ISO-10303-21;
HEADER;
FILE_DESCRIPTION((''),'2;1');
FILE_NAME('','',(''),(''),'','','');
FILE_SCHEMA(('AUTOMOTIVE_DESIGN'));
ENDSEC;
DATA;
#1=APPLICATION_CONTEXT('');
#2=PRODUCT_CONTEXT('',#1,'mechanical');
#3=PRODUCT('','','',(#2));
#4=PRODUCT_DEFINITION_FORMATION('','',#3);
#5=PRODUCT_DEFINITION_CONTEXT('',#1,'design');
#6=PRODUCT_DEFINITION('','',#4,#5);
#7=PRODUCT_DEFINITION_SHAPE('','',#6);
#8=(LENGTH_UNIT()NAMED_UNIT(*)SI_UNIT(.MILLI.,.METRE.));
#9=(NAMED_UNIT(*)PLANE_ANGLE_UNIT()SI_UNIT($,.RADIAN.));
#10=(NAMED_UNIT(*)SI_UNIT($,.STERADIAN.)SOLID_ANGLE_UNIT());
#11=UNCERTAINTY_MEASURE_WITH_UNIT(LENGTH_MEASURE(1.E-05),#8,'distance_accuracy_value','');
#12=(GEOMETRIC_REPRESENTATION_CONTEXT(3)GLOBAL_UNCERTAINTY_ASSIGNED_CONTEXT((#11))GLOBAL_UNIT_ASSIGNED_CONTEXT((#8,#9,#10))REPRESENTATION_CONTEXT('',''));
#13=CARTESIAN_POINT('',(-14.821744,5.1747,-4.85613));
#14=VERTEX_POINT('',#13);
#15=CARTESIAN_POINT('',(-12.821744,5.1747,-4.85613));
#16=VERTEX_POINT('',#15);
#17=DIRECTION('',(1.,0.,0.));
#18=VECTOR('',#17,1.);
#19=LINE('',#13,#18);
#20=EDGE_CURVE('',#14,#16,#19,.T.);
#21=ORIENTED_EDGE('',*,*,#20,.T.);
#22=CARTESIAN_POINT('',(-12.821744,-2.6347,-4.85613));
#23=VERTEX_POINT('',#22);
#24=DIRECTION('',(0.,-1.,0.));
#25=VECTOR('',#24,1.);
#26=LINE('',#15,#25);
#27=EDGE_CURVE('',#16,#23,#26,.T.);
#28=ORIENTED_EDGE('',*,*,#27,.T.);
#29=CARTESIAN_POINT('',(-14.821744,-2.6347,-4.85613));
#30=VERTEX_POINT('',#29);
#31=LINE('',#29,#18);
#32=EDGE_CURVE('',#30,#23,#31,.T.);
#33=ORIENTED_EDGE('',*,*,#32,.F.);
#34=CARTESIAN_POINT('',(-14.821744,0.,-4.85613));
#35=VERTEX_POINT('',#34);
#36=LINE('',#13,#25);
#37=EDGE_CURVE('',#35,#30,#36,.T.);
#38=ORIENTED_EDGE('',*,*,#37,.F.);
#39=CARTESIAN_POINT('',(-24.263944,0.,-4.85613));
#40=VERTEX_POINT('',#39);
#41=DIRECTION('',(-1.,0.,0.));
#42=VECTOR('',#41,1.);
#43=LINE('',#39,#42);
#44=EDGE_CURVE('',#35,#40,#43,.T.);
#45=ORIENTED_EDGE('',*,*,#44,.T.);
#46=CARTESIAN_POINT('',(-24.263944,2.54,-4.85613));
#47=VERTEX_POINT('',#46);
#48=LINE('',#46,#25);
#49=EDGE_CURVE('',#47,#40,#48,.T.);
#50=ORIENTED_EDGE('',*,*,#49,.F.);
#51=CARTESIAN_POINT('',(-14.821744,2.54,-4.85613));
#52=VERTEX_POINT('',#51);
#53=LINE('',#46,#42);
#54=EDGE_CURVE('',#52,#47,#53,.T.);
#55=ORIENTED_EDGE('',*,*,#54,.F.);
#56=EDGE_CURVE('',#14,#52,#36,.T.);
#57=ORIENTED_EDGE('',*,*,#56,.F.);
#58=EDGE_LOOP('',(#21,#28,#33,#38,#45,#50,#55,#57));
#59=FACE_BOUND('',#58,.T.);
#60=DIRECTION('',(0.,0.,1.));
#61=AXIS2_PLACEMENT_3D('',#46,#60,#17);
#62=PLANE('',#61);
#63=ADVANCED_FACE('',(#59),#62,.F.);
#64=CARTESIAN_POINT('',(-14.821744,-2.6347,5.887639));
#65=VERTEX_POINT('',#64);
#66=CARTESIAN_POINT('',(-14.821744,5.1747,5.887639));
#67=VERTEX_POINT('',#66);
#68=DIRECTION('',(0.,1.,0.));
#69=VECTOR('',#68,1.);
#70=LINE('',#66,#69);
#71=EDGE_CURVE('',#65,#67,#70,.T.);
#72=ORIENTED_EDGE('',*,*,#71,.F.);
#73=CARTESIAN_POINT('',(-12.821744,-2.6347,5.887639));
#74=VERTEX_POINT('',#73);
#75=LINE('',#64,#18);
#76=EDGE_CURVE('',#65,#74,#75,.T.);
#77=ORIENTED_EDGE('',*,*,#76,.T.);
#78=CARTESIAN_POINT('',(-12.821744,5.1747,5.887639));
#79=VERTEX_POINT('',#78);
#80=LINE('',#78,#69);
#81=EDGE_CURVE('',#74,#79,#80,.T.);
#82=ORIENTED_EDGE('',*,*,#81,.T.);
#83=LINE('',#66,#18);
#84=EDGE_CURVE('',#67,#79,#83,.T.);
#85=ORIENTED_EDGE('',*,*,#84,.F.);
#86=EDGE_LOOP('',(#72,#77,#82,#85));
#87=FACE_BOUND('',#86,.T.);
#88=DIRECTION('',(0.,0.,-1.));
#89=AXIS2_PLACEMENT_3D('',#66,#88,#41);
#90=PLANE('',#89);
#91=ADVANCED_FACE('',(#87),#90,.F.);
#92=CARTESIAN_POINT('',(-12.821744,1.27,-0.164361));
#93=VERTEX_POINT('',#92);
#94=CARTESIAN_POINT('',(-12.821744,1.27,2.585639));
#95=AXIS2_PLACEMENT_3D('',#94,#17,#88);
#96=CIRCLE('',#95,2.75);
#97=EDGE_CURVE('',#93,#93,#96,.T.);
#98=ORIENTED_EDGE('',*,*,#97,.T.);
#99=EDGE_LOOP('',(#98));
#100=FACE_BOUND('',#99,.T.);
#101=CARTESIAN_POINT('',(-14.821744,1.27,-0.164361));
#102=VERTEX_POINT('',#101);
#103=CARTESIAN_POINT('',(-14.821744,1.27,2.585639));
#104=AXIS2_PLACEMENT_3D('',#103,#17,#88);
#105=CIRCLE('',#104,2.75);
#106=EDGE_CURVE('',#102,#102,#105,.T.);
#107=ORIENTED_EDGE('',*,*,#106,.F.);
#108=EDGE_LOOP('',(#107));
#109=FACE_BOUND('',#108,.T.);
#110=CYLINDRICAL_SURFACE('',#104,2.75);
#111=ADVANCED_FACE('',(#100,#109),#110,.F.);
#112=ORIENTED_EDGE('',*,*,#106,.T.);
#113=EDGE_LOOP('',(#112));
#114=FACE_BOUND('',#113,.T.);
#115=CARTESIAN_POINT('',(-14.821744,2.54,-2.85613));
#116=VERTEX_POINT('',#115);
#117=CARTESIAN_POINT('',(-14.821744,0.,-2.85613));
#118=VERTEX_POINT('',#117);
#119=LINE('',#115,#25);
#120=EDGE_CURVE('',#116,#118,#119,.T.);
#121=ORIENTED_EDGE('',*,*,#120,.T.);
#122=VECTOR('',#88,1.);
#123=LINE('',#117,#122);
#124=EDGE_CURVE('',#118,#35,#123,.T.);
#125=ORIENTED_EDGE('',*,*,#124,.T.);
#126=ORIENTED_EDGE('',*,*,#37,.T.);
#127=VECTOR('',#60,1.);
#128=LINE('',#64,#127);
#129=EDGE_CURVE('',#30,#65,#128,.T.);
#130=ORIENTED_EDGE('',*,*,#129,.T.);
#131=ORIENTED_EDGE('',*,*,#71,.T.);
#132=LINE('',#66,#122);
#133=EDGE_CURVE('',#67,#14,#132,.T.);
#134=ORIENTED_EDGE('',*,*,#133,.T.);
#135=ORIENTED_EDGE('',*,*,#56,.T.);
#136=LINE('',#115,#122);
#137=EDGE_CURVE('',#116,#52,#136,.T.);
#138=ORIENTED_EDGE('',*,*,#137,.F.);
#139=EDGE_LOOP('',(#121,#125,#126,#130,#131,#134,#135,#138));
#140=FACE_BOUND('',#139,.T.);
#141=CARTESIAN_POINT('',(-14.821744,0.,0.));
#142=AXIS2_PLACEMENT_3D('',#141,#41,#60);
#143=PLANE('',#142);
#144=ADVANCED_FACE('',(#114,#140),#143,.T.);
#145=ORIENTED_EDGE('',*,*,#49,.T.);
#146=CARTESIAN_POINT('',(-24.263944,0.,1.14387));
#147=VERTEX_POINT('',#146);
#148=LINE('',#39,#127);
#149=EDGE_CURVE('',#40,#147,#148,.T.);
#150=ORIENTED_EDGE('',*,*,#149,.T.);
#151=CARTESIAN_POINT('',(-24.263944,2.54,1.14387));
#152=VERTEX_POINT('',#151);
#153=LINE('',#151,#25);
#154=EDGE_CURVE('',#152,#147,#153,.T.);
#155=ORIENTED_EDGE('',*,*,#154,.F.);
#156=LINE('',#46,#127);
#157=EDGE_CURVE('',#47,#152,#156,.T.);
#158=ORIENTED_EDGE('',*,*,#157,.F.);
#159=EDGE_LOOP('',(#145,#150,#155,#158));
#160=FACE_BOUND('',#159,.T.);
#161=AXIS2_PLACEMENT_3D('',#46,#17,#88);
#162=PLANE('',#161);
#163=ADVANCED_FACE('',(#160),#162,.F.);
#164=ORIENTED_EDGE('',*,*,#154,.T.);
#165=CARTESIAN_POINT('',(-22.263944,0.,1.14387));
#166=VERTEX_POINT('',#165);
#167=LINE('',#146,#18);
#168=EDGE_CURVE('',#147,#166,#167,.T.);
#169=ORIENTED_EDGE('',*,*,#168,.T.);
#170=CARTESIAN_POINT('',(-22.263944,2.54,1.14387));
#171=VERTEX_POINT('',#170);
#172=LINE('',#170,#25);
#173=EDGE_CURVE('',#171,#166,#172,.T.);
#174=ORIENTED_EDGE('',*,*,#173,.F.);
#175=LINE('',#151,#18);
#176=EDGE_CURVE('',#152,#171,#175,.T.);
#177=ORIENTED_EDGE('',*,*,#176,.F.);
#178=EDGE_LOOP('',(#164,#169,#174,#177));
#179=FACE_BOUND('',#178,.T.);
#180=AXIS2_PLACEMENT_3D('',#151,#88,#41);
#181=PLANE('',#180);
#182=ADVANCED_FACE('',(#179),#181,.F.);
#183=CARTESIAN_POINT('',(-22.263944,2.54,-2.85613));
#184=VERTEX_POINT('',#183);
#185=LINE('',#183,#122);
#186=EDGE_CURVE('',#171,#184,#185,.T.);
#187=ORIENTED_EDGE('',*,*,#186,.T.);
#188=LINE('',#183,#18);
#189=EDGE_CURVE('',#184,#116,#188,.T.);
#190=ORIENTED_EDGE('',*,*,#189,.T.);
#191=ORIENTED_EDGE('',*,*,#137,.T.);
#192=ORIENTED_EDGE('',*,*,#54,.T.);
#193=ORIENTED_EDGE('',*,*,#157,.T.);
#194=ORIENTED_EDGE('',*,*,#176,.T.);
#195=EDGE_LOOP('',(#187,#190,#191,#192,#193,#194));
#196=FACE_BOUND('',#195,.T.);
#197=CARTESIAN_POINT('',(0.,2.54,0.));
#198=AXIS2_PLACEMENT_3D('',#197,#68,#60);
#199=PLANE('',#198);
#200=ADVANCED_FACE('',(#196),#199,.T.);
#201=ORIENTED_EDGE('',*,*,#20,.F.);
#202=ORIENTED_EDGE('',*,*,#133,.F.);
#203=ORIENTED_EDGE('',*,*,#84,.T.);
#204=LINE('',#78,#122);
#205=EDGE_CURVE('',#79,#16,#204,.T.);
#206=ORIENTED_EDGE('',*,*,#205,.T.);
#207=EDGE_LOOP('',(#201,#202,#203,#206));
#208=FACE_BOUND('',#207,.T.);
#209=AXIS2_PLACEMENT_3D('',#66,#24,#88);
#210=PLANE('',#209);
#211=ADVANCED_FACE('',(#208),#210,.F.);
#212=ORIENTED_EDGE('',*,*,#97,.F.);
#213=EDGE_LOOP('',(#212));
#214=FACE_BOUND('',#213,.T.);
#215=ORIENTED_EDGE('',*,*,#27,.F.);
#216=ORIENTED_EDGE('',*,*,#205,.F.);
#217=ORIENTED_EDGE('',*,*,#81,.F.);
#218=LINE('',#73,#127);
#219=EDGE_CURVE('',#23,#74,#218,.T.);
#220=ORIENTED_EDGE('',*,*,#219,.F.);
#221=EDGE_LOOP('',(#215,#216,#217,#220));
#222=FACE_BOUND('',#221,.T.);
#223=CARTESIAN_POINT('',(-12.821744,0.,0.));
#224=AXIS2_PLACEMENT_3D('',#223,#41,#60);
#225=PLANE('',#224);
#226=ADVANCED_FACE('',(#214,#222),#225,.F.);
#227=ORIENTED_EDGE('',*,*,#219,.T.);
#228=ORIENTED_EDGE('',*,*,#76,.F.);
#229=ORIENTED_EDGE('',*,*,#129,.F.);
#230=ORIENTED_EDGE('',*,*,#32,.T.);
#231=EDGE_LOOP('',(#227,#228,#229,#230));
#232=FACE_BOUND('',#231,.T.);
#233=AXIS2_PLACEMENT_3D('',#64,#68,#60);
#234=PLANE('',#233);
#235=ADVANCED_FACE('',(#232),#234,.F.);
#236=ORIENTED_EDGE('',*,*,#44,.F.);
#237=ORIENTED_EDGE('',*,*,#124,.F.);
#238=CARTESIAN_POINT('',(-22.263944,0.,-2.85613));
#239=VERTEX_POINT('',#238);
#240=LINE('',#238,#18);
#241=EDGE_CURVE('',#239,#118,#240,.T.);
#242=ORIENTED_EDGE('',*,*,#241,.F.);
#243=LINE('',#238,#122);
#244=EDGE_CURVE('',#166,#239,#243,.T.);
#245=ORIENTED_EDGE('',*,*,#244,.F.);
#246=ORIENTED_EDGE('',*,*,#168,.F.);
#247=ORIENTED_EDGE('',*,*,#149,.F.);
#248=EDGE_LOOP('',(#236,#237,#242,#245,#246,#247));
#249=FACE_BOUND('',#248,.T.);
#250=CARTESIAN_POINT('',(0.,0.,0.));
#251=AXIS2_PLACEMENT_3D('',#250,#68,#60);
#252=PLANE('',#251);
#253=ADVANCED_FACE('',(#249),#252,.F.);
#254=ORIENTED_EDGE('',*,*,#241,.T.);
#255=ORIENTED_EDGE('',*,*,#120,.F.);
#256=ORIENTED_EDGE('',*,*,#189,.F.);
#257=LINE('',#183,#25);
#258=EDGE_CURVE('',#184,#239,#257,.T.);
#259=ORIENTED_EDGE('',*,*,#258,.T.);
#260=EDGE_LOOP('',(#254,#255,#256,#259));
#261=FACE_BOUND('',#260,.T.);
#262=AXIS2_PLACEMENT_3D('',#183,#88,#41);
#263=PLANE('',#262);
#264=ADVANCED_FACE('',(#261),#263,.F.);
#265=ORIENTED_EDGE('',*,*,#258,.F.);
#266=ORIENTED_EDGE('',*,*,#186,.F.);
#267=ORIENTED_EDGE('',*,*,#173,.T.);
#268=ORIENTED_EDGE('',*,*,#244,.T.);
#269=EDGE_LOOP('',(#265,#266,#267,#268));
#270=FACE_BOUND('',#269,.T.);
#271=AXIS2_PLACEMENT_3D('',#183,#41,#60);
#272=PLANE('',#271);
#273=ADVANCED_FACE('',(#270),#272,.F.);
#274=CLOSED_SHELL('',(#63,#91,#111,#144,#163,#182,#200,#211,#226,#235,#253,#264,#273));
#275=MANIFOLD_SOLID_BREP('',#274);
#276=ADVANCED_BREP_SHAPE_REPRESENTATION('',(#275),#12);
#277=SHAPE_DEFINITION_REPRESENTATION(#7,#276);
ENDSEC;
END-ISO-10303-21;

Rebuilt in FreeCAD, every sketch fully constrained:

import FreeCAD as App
import Part
import Sketcher

V = App.Vector
Q = App.Units.Quantity

doc = App.newDocument("Part")
body = doc.addObject("PartDesign::Body", "Body")

# Sketch on XZ plane
sketch1 = body.newObject("Sketcher::SketchObject", "Sketch")
sketch1.AttachmentSupport = (doc.getObject("XZ_Plane"), [""])
sketch1.MapMode = "FlatFace"
sketch1.addGeometry([
    Part.LineSegment(V(-24.3, -4.9, 0), V(-24.3, 1.1, 0)),  # 0
    Part.LineSegment(V(-24.3, 1.1, 0), V(-22.3, 1.1, 0)),  # 1
    Part.LineSegment(V(-22.3, 1.1, 0), V(-22.3, -2.9, 0)),  # 2
    Part.LineSegment(V(-22.3, -2.9, 0), V(-14.8, -2.9, 0)),  # 3
    Part.LineSegment(V(-14.8, -2.9, 0), V(-14.8, -4.9, 0)),  # 4
    Part.LineSegment(V(-14.8, -4.9, 0), V(-24.3, -4.9, 0)),  # 5
], False)
sketch1.addConstraint([
    Sketcher.Constraint("Coincident", 0, 2, 1, 1),
    Sketcher.Constraint("Coincident", 1, 2, 2, 1),
    Sketcher.Constraint("Coincident", 2, 2, 3, 1),
    Sketcher.Constraint("Coincident", 3, 2, 4, 1),
    Sketcher.Constraint("Coincident", 4, 2, 5, 1),
    Sketcher.Constraint("Coincident", 5, 2, 0, 1),
    Sketcher.Constraint("Vertical", 0),
    Sketcher.Constraint("Horizontal", 1),
    Sketcher.Constraint("Vertical", 2),
    Sketcher.Constraint("Horizontal", 3),
    Sketcher.Constraint("Vertical", 4),
    Sketcher.Constraint("Horizontal", 5),
    Sketcher.Constraint("Equal", 1, 4),
    Sketcher.Constraint("DistanceX", 1, 1, 1, 2, Q("2 mm")),
    Sketcher.Constraint("DistanceY", 0, 1, 0, 2, Q("6 mm")),
    Sketcher.Constraint("DistanceX", 3, 1, 3, 2, Q("7.4422 mm")),
    Sketcher.Constraint("DistanceY", -1, 1, 0, 2, Q("1.14387 mm")),
    Sketcher.Constraint("DistanceX", 0, 2, -1, 1, Q("24.263944 mm")),
])
pad1 = body.newObject("PartDesign::Pad", "Pad")
pad1.Profile = sketch1
pad1.Length = 2.54
pad1.Reversed = True

# Sketch on YZ plane
sketch2 = body.newObject("Sketcher::SketchObject", "Sketch001")
sketch2.AttachmentSupport = (doc.getObject("YZ_Plane"), [""])
sketch2.MapMode = "FlatFace"
sketch2.AttachmentOffset = App.Placement(V(0, 0, -14.821744), App.Rotation())
sketch2.addGeometry([
    Part.LineSegment(V(5.2, 5.9, 0), V(-2.6, 5.9, 0)),  # 0
    Part.LineSegment(V(-2.6, 5.9, 0), V(-2.6, -4.9, 0)),  # 1
    Part.LineSegment(V(-2.6, -4.9, 0), V(5.2, -4.9, 0)),  # 2
    Part.LineSegment(V(5.2, -4.9, 0), V(5.2, 5.9, 0)),  # 3
    Part.Circle(V(1.3, 2.6, 0), V(0, 0, 1), 2.8),  # 4
], False)
sketch2.addConstraint([
    Sketcher.Constraint("Coincident", 0, 2, 1, 1),
    Sketcher.Constraint("Coincident", 1, 2, 2, 1),
    Sketcher.Constraint("Coincident", 2, 2, 3, 1),
    Sketcher.Constraint("Coincident", 3, 2, 0, 1),
    Sketcher.Constraint("Horizontal", 0),
    Sketcher.Constraint("Vertical", 1),
    Sketcher.Constraint("Horizontal", 2),
    Sketcher.Constraint("Vertical", 3),
    Sketcher.Constraint("Diameter", 4, Q("5.5 mm")),
    Sketcher.Constraint("DistanceX", -1, 1, 4, 3, Q("1.27 mm")),
    Sketcher.Constraint("DistanceX", 0, 2, 0, 1, Q("7.8094 mm")),
    Sketcher.Constraint("DistanceY", 4, 3, 0, 2, Q("3.302 mm")),
    Sketcher.Constraint("DistanceY", 1, 2, 1, 1, Q("10.743768 mm")),
    Sketcher.Constraint("DistanceX", 0, 2, -1, 1, Q("2.6347 mm")),
    Sketcher.Constraint("DistanceY", -1, 1, 4, 3, Q("2.585639 mm")),
])
pad2 = body.newObject("PartDesign::Pad", "Pad001")
pad2.Profile = sketch2
pad2.Length = 2

doc.recompute()
